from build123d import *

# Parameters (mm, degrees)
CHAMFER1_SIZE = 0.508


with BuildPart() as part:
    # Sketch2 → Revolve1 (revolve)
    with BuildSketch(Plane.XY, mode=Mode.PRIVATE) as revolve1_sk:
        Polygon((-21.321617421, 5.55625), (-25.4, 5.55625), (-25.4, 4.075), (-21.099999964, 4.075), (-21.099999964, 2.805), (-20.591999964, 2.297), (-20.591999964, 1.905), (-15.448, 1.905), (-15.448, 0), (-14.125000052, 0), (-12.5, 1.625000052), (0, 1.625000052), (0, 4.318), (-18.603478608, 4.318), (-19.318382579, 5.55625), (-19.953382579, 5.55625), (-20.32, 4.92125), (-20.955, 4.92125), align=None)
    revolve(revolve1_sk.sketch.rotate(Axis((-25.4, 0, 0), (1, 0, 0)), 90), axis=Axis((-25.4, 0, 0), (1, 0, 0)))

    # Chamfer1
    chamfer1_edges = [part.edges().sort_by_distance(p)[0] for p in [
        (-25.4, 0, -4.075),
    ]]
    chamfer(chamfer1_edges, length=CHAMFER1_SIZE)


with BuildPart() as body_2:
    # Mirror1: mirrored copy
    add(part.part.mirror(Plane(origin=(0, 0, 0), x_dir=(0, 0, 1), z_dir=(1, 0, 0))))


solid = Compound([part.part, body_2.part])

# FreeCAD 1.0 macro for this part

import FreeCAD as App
import Part
import Sketcher

V = App.Vector
Q = App.Units.Quantity


def edges_at(feature, points):
    """Names of the edges that pass closest to the given points."""
    edges = feature.Shape.Edges
    near = lambda p: min(range(len(edges)), key=lambda i: edges[i].distToShape(Part.Vertex(*p))[0])
    return sorted({f"Edge{near(p) + 1}" for p in points})

doc = App.newDocument("Part")
body = doc.addObject("PartDesign::Body", "Body")

sketch1 = body.newObject("Sketcher::SketchObject", "Sketch")
sketch1.AttachmentSupport = (doc.getObject("XY_Plane"), [""])
sketch1.MapMode = "FlatFace"
sketch1.addGeometry([
    Part.LineSegment(V(-21.32, 5.56, 0), V(-25.4, 5.56, 0)),
    Part.LineSegment(V(-25.4, 5.56, 0), V(-25.4, 4.08, 0)),
    Part.LineSegment(V(-25.4, 4.08, 0), V(-21.1, 4.08, 0)),
    Part.LineSegment(V(-21.1, 4.08, 0), V(-21.1, 2.81, 0)),
    Part.LineSegment(V(-21.1, 2.81, 0), V(-20.59, 2.3, 0)),
    Part.LineSegment(V(-20.59, 2.3, 0), V(-20.59, 1.91, 0)),
    Part.LineSegment(V(-20.59, 1.91, 0), V(-15.45, 1.91, 0)),
    Part.LineSegment(V(-15.45, 1.91, 0), V(-15.45, 0, 0)),
    Part.LineSegment(V(-15.45, 0, 0), V(-14.13, 0, 0)),
    Part.LineSegment(V(-14.13, 0, 0), V(-12.5, 1.63, 0)),
    Part.LineSegment(V(-12.5, 1.63, 0), V(0, 1.63, 0)),
    Part.LineSegment(V(0, 1.63, 0), V(0, 4.32, 0)),
    Part.LineSegment(V(0, 4.32, 0), V(-18.6, 4.32, 0)),
    Part.LineSegment(V(-18.6, 4.32, 0), V(-19.32, 5.56, 0)),
    Part.LineSegment(V(-19.32, 5.56, 0), V(-19.95, 5.56, 0)),
    Part.LineSegment(V(-19.95, 5.56, 0), V(-20.32, 4.92, 0)),
    Part.LineSegment(V(-20.32, 4.92, 0), V(-20.95, 4.92, 0)),
    Part.LineSegment(V(-20.95, 4.92, 0), V(-21.32, 5.56, 0)),
], False)
sketch1.addConstraint([
    Sketcher.Constraint("Coincident", 0, 2, 1, 1),
    Sketcher.Constraint("Coincident", 1, 2, 2, 1),
    Sketcher.Constraint("Coincident", 2, 2, 3, 1),
    Sketcher.Constraint("Coincident", 3, 2, 4, 1),
    Sketcher.Constraint("Coincident", 4, 2, 5, 1),
    Sketcher.Constraint("Coincident", 5, 2, 6, 1),
    Sketcher.Constraint("Coincident", 6, 2, 7, 1),
    Sketcher.Constraint("Coincident", 7, 2, 8, 1),
    Sketcher.Constraint("Coincident", 8, 2, 9, 1),
    Sketcher.Constraint("Coincident", 9, 2, 10, 1),
    Sketcher.Constraint("Coincident", 10, 2, 11, 1),
    Sketcher.Constraint("Coincident", 11, 2, 12, 1),
    Sketcher.Constraint("Coincident", 12, 2, 13, 1),
    Sketcher.Constraint("Coincident", 13, 2, 14, 1),
    Sketcher.Constraint("Coincident", 14, 2, 15, 1),
    Sketcher.Constraint("Coincident", 15, 2, 16, 1),
    Sketcher.Constraint("Coincident", 16, 2, 17, 1),
    Sketcher.Constraint("Coincident", 17, 2, 0, 1),
    Sketcher.Constraint("Horizontal", 0),
    Sketcher.Constraint("Vertical", 1),
    Sketcher.Constraint("Horizontal", 2),
    Sketcher.Constraint("Vertical", 3),
    Sketcher.Constraint("Vertical", 5),
    Sketcher.Constraint("Horizontal", 6),
    Sketcher.Constraint("Vertical", 7),
    Sketcher.Constraint("Horizontal", 8),
    Sketcher.Constraint("Horizontal", 10),
    Sketcher.Constraint("Vertical", 11),
    Sketcher.Constraint("Horizontal", 12),
    Sketcher.Constraint("Horizontal", 14),
    Sketcher.Constraint("Horizontal", 16),
    Sketcher.Constraint("PointOnObject", 7, 2, -1),
    Sketcher.Constraint("PointOnObject", 10, 2, -2),
    Sketcher.Constraint("Perpendicular", 4, 9),
    Sketcher.Constraint("Parallel", 13, 17),
    Sketcher.Constraint("Horizontal", 0, 2, 13, 2),
    Sketcher.Constraint("Equal", 14, 16),
    Sketcher.Constraint("Equal", 15, 17),
    Sketcher.Constraint("DistanceX", 0, 2, -1, 1, Q("1 in")),
    Sketcher.Constraint("Angle", 4, Q("-45 deg")),
    Sketcher.Constraint("Angle", 13, Q("120 deg")),
    Sketcher.Constraint("DistanceY", 3, 2, 3, 1, Q("0.05 in")),
    Sketcher.Constraint("DistanceX", 15, 2, -1, 1, Q("0.8 in")),
    Sketcher.Constraint("DistanceX", 14, 2, 14, 1, Q("0.025 in")),
    Sketcher.Constraint("DistanceY", 7, 2, 7, 1, Q("0.075 in")),
    Sketcher.Constraint("DistanceY", -1, 1, 11, 2, Q("0.17 in")),
    Sketcher.Constraint("DistanceX", 3, 2, 4, 2, Q("0.02 in")),
    Sketcher.Constraint("DistanceY", -1, 1, 0, 2, Q("0.21875 in")),
    Sketcher.Constraint("DistanceY", 15, 2, 14, 2, Q("0.025 in")),
    Sketcher.Constraint("DistanceX", 2, 1, 2, 2, 4.3),
    Sketcher.Constraint("DistanceX", 6, 1, 6, 2, 5.144),
    Sketcher.Constraint("DistanceX", 8, 1, 8, 2, 1.323),
    Sketcher.Constraint("DistanceX", 10, 1, 10, 2, 12.5),
    Sketcher.Constraint("DistanceY", 5, 2, 5, 1, 0.392),
])
revolution = body.newObject("PartDesign::Revolution", "Revolution")
revolution.Profile = sketch1
revolution.ReferenceAxis = (sketch1, ["H_Axis"])
revolution.Angle = 360
doc.recompute()

chamfer = body.newObject("PartDesign::Chamfer", "Chamfer")
chamfer.Base = (revolution, edges_at(revolution, [(-25.4, 0, -4.075)]))
chamfer.Size = Q("0.02 in")
body2 = doc.addObject("PartDesign::Body", "Body001")
doc.recompute()

mirroring = doc.addObject("Part::Mirroring", "Mirroring")
mirroring.Source = body
mirroring.Base = V(0, 0, 0)
mirroring.Normal = V(1, 0, 0)
body2.BaseFeature = mirroring
doc.recompute()
mirroring.Visibility = False

doc.recompute()
